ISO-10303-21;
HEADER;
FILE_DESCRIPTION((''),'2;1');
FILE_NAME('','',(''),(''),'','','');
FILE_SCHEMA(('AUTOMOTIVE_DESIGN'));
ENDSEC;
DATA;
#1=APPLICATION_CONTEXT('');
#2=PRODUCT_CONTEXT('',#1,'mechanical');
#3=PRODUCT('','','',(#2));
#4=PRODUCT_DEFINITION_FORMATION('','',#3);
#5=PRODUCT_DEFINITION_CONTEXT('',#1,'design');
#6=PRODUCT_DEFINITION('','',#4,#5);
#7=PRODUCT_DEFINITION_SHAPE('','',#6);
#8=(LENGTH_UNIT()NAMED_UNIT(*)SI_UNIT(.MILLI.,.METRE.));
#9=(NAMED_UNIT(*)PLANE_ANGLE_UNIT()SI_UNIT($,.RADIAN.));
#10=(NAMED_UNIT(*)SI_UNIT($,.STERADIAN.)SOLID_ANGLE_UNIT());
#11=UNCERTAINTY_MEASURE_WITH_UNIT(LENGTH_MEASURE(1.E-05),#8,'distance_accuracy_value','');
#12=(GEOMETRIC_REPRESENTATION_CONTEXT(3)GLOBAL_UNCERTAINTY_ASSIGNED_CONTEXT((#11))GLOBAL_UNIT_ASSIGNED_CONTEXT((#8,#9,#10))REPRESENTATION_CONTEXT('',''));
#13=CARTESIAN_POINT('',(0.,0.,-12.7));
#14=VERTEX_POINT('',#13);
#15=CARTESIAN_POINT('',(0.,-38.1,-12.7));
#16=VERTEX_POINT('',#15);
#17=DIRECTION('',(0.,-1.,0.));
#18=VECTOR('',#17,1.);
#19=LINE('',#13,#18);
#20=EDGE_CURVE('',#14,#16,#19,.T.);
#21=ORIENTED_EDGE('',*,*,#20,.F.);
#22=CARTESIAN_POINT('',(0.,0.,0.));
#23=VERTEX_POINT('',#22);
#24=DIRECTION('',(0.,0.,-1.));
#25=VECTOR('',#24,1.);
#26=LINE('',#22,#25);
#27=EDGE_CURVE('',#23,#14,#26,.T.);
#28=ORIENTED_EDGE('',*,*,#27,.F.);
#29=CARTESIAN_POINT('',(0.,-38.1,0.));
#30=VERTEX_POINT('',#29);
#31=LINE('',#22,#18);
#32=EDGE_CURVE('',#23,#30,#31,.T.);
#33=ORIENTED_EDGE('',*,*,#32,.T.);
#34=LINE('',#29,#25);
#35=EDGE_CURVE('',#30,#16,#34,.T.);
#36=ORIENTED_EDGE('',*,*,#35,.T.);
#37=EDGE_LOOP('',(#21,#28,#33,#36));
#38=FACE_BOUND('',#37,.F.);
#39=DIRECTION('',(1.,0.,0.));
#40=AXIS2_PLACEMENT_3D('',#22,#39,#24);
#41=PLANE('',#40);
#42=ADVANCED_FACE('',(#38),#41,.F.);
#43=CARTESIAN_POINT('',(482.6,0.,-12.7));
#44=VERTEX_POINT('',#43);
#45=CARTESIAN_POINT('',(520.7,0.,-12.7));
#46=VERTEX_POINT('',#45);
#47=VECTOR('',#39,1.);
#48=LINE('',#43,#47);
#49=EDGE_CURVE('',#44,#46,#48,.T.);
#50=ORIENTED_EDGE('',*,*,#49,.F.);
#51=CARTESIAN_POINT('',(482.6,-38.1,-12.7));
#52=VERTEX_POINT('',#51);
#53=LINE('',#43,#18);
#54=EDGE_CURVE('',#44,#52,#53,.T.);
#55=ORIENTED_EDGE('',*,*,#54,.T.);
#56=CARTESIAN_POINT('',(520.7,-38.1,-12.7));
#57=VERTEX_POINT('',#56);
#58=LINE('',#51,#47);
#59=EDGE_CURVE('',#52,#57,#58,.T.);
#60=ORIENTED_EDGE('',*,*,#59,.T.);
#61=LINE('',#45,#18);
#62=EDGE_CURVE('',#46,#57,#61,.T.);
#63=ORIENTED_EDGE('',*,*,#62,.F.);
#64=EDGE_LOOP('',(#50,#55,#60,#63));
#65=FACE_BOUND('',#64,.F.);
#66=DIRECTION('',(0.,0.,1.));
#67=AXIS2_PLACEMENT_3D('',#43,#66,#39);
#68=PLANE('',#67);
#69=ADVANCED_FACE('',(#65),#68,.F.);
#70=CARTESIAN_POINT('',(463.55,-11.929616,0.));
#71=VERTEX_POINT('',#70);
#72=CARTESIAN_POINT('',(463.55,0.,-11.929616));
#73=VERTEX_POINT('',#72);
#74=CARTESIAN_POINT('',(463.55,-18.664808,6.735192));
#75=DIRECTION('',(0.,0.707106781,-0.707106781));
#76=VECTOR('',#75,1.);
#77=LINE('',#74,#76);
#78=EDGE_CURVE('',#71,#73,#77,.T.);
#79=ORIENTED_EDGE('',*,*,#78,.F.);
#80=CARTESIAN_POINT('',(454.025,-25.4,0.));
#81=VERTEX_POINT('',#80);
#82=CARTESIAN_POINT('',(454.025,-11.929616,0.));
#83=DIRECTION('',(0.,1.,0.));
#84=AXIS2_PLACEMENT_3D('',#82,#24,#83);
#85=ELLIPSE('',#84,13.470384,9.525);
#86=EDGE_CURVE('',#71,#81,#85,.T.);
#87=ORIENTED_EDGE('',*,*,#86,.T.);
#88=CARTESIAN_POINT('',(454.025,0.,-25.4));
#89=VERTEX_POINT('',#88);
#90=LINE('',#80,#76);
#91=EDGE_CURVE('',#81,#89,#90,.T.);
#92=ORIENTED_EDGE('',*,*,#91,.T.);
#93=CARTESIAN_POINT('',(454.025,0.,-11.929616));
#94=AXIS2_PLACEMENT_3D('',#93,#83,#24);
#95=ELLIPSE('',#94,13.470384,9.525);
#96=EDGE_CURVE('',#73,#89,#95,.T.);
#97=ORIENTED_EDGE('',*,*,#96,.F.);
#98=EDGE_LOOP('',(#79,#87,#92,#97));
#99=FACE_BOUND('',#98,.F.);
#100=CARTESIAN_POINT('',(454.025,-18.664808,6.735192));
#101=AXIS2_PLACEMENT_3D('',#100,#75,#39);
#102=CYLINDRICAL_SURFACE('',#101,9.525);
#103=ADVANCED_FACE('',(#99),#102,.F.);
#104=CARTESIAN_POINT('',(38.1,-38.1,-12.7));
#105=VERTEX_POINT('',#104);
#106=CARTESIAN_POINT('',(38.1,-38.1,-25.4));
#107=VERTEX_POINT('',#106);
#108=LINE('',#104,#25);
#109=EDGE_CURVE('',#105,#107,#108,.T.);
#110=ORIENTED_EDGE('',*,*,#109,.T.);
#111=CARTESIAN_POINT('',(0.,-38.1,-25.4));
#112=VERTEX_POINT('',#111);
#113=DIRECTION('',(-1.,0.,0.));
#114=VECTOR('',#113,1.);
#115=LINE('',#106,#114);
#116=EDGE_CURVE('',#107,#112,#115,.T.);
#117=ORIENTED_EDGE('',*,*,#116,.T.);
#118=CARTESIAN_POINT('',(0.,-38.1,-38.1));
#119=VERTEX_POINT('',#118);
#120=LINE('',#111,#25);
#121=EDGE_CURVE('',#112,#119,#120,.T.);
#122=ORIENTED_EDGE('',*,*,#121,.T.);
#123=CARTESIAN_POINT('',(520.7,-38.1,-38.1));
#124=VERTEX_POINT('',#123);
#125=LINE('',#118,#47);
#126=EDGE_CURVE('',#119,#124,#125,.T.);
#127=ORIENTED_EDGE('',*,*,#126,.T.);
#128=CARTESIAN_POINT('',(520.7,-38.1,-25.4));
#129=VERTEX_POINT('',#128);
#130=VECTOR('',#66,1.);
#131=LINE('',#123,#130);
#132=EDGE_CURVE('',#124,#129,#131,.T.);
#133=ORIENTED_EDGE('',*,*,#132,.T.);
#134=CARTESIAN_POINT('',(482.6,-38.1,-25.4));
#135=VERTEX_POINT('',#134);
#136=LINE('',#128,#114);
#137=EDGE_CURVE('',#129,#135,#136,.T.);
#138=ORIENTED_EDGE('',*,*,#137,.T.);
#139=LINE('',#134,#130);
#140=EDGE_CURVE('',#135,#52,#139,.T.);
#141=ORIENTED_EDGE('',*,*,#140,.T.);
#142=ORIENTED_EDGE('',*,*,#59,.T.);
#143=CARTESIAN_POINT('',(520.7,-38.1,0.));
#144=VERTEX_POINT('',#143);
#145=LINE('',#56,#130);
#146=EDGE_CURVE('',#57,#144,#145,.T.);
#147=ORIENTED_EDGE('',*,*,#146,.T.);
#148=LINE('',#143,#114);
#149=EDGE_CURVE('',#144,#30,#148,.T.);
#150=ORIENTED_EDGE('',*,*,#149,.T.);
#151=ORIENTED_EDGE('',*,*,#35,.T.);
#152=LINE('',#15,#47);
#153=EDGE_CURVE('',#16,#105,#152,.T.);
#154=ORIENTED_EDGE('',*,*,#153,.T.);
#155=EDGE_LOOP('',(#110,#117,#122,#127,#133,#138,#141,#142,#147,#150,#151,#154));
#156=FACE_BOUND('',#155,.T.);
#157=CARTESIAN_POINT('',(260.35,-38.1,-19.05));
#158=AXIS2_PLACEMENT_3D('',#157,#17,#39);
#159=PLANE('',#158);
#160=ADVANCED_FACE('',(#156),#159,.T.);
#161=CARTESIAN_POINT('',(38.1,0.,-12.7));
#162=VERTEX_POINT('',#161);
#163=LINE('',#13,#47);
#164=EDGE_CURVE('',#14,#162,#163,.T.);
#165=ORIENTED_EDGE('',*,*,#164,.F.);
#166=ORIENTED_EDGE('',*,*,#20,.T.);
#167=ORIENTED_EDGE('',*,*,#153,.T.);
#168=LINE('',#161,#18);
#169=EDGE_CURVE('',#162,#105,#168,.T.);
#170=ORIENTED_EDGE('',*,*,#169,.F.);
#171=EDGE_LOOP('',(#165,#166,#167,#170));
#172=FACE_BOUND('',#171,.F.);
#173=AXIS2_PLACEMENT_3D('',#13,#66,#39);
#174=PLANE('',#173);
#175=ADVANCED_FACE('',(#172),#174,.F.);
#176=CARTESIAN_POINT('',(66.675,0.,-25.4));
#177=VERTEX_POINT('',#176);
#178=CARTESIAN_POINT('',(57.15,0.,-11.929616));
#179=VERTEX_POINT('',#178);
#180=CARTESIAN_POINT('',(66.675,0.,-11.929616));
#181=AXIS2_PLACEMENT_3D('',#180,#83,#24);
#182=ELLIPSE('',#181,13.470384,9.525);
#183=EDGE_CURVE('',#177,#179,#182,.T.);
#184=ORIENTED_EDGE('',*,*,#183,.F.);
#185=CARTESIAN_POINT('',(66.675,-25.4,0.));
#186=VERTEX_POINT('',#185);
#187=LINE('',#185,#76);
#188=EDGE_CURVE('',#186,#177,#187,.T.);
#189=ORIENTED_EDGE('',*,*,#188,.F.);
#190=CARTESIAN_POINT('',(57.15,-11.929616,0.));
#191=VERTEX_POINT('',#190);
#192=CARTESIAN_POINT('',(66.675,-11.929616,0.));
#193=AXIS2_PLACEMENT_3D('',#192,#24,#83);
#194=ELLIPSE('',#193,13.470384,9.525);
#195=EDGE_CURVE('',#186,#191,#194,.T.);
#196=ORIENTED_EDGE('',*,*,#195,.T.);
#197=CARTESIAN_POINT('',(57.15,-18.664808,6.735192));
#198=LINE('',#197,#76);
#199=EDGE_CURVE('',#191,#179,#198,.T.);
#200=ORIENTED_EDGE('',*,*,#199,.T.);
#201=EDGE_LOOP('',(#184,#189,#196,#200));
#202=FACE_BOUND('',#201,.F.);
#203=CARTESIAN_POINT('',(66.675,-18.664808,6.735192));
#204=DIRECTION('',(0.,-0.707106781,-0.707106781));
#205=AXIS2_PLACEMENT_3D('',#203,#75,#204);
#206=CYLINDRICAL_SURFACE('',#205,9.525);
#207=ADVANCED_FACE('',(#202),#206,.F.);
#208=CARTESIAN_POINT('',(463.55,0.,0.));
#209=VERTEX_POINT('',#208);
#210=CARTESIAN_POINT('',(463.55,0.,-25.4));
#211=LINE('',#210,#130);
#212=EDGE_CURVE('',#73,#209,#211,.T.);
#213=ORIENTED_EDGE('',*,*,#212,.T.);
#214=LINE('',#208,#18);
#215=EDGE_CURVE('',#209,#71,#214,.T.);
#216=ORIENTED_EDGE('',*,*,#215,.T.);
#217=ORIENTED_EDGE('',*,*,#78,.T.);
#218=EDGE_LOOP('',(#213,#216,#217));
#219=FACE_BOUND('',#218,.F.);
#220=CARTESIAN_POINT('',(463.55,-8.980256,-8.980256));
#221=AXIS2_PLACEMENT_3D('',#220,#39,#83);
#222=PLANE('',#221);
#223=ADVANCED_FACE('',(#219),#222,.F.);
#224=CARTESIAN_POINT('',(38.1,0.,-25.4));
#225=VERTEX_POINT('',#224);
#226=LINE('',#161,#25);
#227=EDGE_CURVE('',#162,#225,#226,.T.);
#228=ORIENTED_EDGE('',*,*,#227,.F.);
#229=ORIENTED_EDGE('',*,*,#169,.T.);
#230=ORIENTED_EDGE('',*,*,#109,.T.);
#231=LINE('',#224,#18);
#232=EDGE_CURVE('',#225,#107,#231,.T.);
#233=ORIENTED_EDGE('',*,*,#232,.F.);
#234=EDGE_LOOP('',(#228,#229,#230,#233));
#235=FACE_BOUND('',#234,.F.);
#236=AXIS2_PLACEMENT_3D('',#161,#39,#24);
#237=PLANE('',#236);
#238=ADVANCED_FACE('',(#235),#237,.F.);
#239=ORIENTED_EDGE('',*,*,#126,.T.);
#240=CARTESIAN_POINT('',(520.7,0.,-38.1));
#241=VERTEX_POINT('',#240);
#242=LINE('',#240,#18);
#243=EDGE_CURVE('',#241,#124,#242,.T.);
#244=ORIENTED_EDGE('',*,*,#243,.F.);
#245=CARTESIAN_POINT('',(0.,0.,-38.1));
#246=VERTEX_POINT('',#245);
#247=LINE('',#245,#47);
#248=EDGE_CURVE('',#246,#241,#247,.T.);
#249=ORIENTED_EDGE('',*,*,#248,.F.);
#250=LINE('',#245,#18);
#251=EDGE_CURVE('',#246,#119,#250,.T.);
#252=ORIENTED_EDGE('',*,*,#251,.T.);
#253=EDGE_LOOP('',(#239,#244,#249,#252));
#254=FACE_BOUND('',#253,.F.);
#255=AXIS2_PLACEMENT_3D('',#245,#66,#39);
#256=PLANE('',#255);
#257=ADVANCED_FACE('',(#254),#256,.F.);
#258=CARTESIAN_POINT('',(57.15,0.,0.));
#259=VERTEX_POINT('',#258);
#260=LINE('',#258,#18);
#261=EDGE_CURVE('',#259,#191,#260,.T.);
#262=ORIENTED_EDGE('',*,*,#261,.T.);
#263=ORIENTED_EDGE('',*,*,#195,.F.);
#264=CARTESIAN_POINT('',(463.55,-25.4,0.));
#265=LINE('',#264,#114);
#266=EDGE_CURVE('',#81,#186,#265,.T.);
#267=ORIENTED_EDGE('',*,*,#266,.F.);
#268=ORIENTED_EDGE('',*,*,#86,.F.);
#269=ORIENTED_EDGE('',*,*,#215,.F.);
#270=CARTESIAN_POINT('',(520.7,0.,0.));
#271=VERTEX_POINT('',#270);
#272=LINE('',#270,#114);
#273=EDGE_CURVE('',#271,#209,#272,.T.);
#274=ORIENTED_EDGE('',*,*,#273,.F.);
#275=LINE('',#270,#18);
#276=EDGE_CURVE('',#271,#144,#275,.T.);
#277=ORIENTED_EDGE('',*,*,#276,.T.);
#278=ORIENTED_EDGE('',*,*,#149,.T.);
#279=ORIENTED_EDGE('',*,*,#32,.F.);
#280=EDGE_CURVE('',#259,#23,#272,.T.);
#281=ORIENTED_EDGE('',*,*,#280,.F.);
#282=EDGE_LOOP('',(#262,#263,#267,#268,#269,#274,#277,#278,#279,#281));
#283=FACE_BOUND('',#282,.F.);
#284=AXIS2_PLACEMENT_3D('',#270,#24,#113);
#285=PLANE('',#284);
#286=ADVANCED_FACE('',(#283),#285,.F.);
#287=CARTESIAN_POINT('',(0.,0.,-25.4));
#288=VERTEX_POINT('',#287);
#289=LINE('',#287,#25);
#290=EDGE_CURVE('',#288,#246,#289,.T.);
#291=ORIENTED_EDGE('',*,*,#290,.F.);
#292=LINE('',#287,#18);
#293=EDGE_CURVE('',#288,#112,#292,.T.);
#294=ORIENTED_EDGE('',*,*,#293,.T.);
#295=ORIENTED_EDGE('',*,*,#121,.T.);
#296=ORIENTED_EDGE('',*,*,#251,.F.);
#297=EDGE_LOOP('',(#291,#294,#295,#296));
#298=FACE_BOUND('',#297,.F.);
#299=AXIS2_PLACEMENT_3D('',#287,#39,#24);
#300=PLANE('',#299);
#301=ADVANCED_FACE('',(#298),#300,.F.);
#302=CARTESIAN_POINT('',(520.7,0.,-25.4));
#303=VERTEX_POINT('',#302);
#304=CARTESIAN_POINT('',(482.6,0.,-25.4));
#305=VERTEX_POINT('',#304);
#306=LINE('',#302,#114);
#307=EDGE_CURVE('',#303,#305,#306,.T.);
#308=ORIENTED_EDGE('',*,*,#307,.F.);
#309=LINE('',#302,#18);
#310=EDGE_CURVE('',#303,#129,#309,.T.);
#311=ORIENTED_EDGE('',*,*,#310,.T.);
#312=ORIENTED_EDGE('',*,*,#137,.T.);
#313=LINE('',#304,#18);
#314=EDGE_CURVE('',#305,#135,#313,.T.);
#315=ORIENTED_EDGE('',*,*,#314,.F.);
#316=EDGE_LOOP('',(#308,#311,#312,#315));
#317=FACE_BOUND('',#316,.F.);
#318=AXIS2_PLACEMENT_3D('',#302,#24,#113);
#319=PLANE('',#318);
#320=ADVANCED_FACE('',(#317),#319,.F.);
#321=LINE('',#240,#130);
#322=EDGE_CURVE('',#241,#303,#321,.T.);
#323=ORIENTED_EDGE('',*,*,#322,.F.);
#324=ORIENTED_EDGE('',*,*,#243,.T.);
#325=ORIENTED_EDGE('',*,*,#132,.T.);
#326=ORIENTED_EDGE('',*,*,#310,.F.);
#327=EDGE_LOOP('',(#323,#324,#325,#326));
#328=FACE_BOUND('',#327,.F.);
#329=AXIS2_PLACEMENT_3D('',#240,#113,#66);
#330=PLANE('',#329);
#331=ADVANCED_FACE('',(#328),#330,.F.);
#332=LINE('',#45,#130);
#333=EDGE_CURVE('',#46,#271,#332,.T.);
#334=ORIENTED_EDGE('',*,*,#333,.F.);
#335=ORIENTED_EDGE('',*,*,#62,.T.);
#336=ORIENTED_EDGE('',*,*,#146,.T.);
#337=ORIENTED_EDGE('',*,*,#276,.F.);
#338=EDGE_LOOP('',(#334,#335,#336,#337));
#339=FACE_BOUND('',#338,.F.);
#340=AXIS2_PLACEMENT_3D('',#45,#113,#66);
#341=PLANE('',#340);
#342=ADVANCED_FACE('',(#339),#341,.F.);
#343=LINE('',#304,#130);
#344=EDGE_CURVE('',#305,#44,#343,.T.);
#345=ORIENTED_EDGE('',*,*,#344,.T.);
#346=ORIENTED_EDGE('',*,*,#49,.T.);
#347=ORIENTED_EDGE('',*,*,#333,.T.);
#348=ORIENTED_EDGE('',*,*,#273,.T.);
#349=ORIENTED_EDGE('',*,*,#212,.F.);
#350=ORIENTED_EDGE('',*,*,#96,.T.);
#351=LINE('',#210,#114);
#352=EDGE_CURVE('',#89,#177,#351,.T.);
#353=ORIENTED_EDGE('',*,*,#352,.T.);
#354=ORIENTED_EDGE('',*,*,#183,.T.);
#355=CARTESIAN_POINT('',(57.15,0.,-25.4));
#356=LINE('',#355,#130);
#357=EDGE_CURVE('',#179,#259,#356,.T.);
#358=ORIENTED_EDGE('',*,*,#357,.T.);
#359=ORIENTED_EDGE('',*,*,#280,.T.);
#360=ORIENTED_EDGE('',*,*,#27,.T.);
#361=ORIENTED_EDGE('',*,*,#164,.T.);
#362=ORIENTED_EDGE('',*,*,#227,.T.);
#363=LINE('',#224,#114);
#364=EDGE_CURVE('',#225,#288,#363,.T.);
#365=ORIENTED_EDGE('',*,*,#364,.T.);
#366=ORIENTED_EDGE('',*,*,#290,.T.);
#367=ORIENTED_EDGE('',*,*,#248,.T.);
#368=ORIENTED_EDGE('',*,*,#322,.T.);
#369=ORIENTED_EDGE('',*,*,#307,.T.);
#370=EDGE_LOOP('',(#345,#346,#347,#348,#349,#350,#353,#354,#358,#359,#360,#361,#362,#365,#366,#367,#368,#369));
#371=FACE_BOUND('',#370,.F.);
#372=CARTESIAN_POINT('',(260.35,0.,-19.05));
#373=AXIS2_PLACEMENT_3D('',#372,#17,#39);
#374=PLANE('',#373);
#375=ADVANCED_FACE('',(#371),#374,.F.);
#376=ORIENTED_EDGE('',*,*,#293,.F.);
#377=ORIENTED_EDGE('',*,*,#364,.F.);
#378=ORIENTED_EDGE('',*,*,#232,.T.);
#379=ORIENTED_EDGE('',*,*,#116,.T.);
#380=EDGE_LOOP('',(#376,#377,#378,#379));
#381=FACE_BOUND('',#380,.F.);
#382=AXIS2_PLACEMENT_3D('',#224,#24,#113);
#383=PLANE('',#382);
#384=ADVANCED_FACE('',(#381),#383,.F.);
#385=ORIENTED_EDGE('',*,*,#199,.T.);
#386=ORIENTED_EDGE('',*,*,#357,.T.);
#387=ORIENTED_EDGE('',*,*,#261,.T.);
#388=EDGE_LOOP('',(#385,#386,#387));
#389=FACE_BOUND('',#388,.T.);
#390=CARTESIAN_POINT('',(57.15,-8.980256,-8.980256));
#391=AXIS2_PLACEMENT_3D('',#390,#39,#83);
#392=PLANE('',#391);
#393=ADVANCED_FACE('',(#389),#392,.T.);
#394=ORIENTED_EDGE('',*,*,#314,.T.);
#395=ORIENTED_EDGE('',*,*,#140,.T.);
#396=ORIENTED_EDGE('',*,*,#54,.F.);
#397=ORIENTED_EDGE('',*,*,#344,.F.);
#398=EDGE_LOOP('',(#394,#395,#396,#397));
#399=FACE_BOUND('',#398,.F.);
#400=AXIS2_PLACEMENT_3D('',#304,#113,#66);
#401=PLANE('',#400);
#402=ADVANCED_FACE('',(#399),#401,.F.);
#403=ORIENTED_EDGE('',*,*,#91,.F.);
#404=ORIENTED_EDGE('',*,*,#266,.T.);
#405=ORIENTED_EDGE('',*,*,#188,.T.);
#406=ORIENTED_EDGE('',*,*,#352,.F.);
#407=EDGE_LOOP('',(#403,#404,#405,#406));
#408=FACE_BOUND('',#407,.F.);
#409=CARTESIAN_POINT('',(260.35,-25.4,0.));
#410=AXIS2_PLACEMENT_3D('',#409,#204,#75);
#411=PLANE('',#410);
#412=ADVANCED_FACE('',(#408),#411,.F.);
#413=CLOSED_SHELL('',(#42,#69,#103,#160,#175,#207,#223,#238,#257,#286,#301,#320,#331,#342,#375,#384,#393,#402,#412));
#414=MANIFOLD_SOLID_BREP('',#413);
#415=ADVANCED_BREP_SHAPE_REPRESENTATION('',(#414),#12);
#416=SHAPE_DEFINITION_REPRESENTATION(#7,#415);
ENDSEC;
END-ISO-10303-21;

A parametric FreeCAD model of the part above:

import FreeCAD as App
import Part
import Sketcher
from FreeCAD import Vector
Q = App.Units.Quantity


def edges_at(feature, points):
    """Names of the edges that pass closest to the given points."""
    edges = feature.Shape.Edges
    near = lambda p: min(range(len(edges)), key=lambda i: edges[i].distToShape(Part.Vertex(*p))[0])
    return sorted({f"Edge{near(p) + 1}" for p in points})


def add_polygon(sketch, points):
    """Adds a closed chain of lines whose ends are joined by coincident constraints."""
    first, n = sketch.GeometryCount, len(points)
    for a, b in zip(points, points[1:] + points[:1]):
        sketch.addGeometry(Part.LineSegment(App.Vector(*a, 0), App.Vector(*b, 0)), False)
    for i in range(n):
        sketch.addConstraint(Sketcher.Constraint("Coincident", first + i, 2, first + (i + 1) % n, 1))

doc = App.newDocument("Part")
body = doc.addObject("PartDesign::Body", "Body")

# Sketch on XZ plane
sketch1 = body.newObject("Sketcher::SketchObject", "Sketch")
sketch1.AttachmentSupport = (doc.getObject("XZ_Plane"), [""])
sketch1.MapMode = "FlatFace"
add_polygon(sketch1, [(521, 0), (0, 0), (0, -13), (38, -13), (38, -25), (0, -25), (0, -38), (521, -38), (521, -25), (483, -25), (483, -13), (521, -13)])  # lines 0-11
sketch1.addConstraint([
    Sketcher.Constraint("Horizontal", 0),
    Sketcher.Constraint("Vertical", 1),
    Sketcher.Constraint("Horizontal", 2),
    Sketcher.Constraint("Vertical", 3),
    Sketcher.Constraint("Horizontal", 4),
    Sketcher.Constraint("Vertical", 5),
    Sketcher.Constraint("Horizontal", 6),
    Sketcher.Constraint("Vertical", 7),
    Sketcher.Constraint("Horizontal", 8),
    Sketcher.Constraint("Vertical", 9),
    Sketcher.Constraint("Horizontal", 10),
    Sketcher.Constraint("Vertical", 11),
    Sketcher.Constraint("Coincident", 0, 2, -1, 1),
    Sketcher.Constraint("PointOnObject", 4, 2, -2),
    Sketcher.Constraint("Horizontal", 4, 2, 7, 2),
    Sketcher.Constraint("Horizontal", 2, 2, 9, 2),
    Sketcher.Constraint("Vertical", 7, 2, 10, 2),
    Sketcher.Constraint("Equal", 4, 8),
    Sketcher.Constraint("Equal", 1, 3),
    Sketcher.Constraint("Equal", 3, 5),
    Sketcher.Constraint("DistanceX", 0, 2, 0, 1, Q("20.5 in")),
    Sketcher.Constraint("DistanceX", 2, 1, 2, 2, Q("1.5 in")),
    Sketcher.Constraint("DistanceY", 1, 2, 1, 1, Q("0.5 in")),
])
pad1 = body.newObject("PartDesign::Pad", "Pad")
pad1.Profile = sketch1
pad1.Length = Q("1.5 in")

# Sketch on YZ plane
sketch2 = body.newObject("Sketcher::SketchObject", "Sketch001")
sketch2.AttachmentSupport = (doc.getObject("YZ_Plane"), [""])
sketch2.MapMode = "FlatFace"
sketch2.AttachmentOffset = App.Placement(Vector(0, 0, 10.25 * 25.4), App.Rotation())
add_polygon(sketch2, [(0, -25), (0, 0), (-25, 0)])  # lines 0-2
sketch2.addConstraint([
    Sketcher.Constraint("Vertical", 0),
    Sketcher.Constraint("Horizontal", 1),
    Sketcher.Constraint("Coincident", 0, 2, -1, 1),
    Sketcher.Constraint("Equal", 1, 0),
    Sketcher.Constraint("DistanceX", 1, 2, 1, 1, Q("1 in")),
])
pocket1 = body.newObject("PartDesign::Pocket", "Pocket")
pocket1.Profile = sketch2
pocket1.Length = Q("16 in")
pocket1.Midplane = True
doc.recompute()

fillet = body.newObject("PartDesign::Fillet", "Fillet")
fillet.Base = (pocket1, edges_at(pocket1, [(463.55, -12.7, -12.7), (57.15, -12.7, -12.7)]))
fillet.Radius = Q("0.375 in")

doc.recompute()
